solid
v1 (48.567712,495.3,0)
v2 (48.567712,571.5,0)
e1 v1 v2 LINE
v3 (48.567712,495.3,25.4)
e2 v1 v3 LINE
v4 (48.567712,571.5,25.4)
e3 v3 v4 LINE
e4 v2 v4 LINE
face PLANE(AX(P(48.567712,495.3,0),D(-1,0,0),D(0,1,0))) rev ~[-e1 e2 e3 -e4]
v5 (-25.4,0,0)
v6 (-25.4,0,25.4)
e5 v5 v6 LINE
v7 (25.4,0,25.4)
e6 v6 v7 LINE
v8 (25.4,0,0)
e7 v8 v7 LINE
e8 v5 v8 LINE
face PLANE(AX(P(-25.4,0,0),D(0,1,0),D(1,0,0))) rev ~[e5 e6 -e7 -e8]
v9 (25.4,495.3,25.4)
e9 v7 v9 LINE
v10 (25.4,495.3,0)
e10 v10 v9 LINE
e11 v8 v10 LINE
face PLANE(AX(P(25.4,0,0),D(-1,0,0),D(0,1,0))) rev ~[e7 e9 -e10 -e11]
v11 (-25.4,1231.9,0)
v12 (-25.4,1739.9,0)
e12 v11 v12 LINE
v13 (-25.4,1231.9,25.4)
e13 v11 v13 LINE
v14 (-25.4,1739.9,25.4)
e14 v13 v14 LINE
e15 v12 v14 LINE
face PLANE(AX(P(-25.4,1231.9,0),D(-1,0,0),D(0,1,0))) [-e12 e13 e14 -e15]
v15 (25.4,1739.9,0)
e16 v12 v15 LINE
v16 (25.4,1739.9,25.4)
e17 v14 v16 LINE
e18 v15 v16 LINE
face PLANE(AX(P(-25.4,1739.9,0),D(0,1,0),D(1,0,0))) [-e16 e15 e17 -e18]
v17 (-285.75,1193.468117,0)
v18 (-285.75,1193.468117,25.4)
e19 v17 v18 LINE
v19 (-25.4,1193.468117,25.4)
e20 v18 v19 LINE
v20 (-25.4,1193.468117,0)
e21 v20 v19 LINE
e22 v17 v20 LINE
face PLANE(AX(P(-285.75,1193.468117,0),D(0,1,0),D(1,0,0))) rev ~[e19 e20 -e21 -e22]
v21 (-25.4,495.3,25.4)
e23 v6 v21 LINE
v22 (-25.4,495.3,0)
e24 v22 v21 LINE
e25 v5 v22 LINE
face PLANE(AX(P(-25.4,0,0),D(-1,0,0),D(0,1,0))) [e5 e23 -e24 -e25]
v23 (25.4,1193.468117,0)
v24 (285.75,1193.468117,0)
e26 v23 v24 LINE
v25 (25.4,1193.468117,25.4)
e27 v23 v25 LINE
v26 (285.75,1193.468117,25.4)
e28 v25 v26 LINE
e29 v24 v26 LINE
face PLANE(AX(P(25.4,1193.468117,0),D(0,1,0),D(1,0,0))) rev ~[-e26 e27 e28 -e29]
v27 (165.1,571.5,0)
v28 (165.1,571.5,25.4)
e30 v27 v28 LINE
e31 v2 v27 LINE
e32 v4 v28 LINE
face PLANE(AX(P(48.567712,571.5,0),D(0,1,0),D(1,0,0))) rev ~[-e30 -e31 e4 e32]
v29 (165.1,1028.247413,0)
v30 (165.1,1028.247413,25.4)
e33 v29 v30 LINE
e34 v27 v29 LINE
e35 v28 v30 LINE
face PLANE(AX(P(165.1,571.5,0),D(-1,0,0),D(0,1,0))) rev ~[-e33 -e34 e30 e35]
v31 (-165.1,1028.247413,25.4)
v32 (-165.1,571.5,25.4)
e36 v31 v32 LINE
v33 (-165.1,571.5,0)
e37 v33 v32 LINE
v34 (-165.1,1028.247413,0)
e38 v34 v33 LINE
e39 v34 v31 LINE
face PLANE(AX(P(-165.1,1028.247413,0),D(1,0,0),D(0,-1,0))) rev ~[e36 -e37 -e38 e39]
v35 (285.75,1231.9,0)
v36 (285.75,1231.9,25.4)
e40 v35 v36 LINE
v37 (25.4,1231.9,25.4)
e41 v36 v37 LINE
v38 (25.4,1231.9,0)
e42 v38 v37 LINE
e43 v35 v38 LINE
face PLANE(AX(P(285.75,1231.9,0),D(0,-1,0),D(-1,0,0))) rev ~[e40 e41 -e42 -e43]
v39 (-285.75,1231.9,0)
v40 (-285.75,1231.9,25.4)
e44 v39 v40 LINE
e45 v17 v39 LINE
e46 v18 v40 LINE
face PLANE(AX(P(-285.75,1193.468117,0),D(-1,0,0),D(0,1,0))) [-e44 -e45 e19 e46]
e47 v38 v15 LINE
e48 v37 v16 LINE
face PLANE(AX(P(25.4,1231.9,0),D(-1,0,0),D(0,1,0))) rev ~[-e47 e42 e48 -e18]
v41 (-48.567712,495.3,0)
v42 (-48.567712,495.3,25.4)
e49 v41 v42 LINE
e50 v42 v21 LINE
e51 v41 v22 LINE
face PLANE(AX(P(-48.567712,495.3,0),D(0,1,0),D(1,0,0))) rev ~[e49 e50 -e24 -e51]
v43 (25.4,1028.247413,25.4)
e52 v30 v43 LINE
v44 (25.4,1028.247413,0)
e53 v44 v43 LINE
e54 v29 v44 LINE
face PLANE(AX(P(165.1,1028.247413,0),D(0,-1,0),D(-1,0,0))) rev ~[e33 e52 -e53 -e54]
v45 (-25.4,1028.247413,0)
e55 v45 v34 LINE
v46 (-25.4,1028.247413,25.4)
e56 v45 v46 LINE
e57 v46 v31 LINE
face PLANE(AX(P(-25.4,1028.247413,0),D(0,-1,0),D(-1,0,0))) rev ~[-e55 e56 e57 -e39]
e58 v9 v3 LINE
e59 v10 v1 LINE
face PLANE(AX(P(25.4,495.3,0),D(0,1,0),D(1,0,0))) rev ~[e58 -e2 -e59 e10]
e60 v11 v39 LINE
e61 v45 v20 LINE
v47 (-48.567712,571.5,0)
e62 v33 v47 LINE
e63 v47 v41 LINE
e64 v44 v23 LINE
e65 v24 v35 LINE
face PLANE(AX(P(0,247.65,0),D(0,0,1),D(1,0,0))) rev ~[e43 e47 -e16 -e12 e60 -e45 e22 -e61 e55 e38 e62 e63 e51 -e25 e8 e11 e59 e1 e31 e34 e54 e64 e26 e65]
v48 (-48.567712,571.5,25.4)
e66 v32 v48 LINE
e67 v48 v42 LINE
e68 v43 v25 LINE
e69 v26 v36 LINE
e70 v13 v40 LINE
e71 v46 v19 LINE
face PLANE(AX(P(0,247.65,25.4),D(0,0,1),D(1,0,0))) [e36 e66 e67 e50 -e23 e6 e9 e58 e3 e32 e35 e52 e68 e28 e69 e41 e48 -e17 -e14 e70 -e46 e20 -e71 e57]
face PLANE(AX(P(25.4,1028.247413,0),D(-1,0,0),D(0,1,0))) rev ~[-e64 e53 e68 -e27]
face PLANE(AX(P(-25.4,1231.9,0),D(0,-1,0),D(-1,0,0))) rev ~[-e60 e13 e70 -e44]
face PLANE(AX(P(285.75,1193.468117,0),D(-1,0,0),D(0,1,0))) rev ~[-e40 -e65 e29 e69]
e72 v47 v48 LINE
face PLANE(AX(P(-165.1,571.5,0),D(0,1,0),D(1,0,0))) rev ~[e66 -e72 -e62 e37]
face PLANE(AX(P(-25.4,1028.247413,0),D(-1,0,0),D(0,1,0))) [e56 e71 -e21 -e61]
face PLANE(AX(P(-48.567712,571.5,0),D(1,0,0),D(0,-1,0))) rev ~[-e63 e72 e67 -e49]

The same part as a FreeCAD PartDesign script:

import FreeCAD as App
import Part
import Sketcher
from FreeCAD import Vector
Q = App.Units.Quantity

doc = App.newDocument("Part")
body = doc.addObject("PartDesign::Body", "Body")

# Sketch on XY plane
sketch1 = body.newObject("Sketcher::SketchObject", "Sketch")
sketch1.AttachmentSupport = (doc.getObject("XY_Plane"), [""])
sketch1.MapMode = "FlatFace"
sketch1.addGeometry([
    Part.LineSegment(Vector(49, 495, 0), Vector(49, 572, 0)),  # 0
    Part.LineSegment(Vector(49, 572, 0), Vector(165, 572, 0)),  # 1
    Part.LineSegment(Vector(165, 572, 0), Vector(165, 1028, 0)),  # 2
    Part.LineSegment(Vector(165, 1028, 0), Vector(25, 1028, 0)),  # 3
    Part.LineSegment(Vector(25, 1028, 0), Vector(25, 1193, 0)),  # 4
    Part.LineSegment(Vector(25, 1193, 0), Vector(286, 1193, 0)),  # 5
    Part.LineSegment(Vector(286, 1193, 0), Vector(286, 1232, 0)),  # 6
    Part.LineSegment(Vector(286, 1232, 0), Vector(25, 1232, 0)),  # 7
    Part.LineSegment(Vector(25, 1232, 0), Vector(25, 1740, 0)),  # 8
    Part.LineSegment(Vector(25, 1740, 0), Vector(-25, 1740, 0)),  # 9
    Part.LineSegment(Vector(-25, 1740, 0), Vector(-25, 1232, 0)),  # 10
    Part.LineSegment(Vector(-25, 1232, 0), Vector(-286, 1232, 0)),  # 11
    Part.LineSegment(Vector(-286, 1232, 0), Vector(-286, 1193, 0)),  # 12
    Part.LineSegment(Vector(-286, 1193, 0), Vector(-25, 1193, 0)),  # 13
    Part.LineSegment(Vector(-25, 1193, 0), Vector(-25, 1028, 0)),  # 14
    Part.LineSegment(Vector(-25, 1028, 0), Vector(-165, 1028, 0)),  # 15
    Part.LineSegment(Vector(-165, 1028, 0), Vector(-165, 572, 0)),  # 16
    Part.LineSegment(Vector(-165, 572, 0), Vector(-49, 572, 0)),  # 17
    Part.LineSegment(Vector(-49, 572, 0), Vector(-49, 495, 0)),  # 18
    Part.LineSegment(Vector(-49, 495, 0), Vector(-25, 495, 0)),  # 19
    Part.LineSegment(Vector(-25, 495, 0), Vector(-25, 0, 0)),  # 20
    Part.LineSegment(Vector(-25, 0, 0), Vector(25, 0, 0)),  # 21
    Part.LineSegment(Vector(25, 0, 0), Vector(25, 495, 0)),  # 22
    Part.LineSegment(Vector(25, 495, 0), Vector(49, 495, 0)),  # 23
], False)
sketch1.addConstraint([
    Sketcher.Constraint("Coincident", 0, 2, 1, 1),
    Sketcher.Constraint("Coincident", 1, 2, 2, 1),
    Sketcher.Constraint("Coincident", 2, 2, 3, 1),
    Sketcher.Constraint("Coincident", 3, 2, 4, 1),
    Sketcher.Constraint("Coincident", 4, 2, 5, 1),
    Sketcher.Constraint("Coincident", 5, 2, 6, 1),
    Sketcher.Constraint("Coincident", 6, 2, 7, 1),
    Sketcher.Constraint("Coincident", 7, 2, 8, 1),
    Sketcher.Constraint("Coincident", 8, 2, 9, 1),
    Sketcher.Constraint("Coincident", 9, 2, 10, 1),
    Sketcher.Constraint("Coincident", 10, 2, 11, 1),
    Sketcher.Constraint("Coincident", 11, 2, 12, 1),
    Sketcher.Constraint("Coincident", 12, 2, 13, 1),
    Sketcher.Constraint("Coincident", 13, 2, 14, 1),
    Sketcher.Constraint("Coincident", 14, 2, 15, 1),
    Sketcher.Constraint("Coincident", 15, 2, 16, 1),
    Sketcher.Constraint("Coincident", 16, 2, 17, 1),
    Sketcher.Constraint("Coincident", 17, 2, 18, 1),
    Sketcher.Constraint("Coincident", 18, 2, 19, 1),
    Sketcher.Constraint("Coincident", 19, 2, 20, 1),
    Sketcher.Constraint("Coincident", 20, 2, 21, 1),
    Sketcher.Constraint("Coincident", 21, 2, 22, 1),
    Sketcher.Constraint("Coincident", 22, 2, 23, 1),
    Sketcher.Constraint("Coincident", 23, 2, 0, 1),
    Sketcher.Constraint("Vertical", 0),
    Sketcher.Constraint("Horizontal", 1),
    Sketcher.Constraint("Vertical", 2),
    Sketcher.Constraint("Horizontal", 3),
    Sketcher.Constraint("Vertical", 4),
    Sketcher.Constraint("Horizontal", 5),
    Sketcher.Constraint("Vertical", 6),
    Sketcher.Constraint("Horizontal", 7),
    Sketcher.Constraint("Vertical", 8),
    Sketcher.Constraint("Horizontal", 9),
    Sketcher.Constraint("Vertical", 10),
    Sketcher.Constraint("Horizontal", 11),
    Sketcher.Constraint("Vertical", 12),
    Sketcher.Constraint("Horizontal", 13),
    Sketcher.Constraint("Vertical", 14),
    Sketcher.Constraint("Horizontal", 15),
    Sketcher.Constraint("Vertical", 16),
    Sketcher.Constraint("Horizontal", 17),
    Sketcher.Constraint("Vertical", 18),
    Sketcher.Constraint("Horizontal", 19),
    Sketcher.Constraint("Vertical", 20),
    Sketcher.Constraint("Horizontal", 21),
    Sketcher.Constraint("Vertical", 22),
    Sketcher.Constraint("Horizontal", 23),
    Sketcher.Constraint("Symmetric", 20, 2, 21, 2, -1, 1),
    Sketcher.Constraint("Symmetric", 7, 2, 10, 2, -2),
    Sketcher.Constraint("Symmetric", 5, 2, 12, 2, -2),
    Sketcher.Constraint("Symmetric", 3, 2, 14, 2, -2),
    Sketcher.Constraint("Symmetric", 1, 2, 16, 2, -2),
    Sketcher.Constraint("Symmetric", 18, 2, 23, 2, -2),
    Sketcher.Constraint("Vertical", 4, 2, 7, 2),
    Sketcher.Constraint("Vertical", 14, 2, 19, 2),
    Sketcher.Constraint("DistanceX", 9, 2, 9, 1, Q("2 in")),
    Sketcher.Constraint("DistanceY", 0, 1, 0, 2, Q("3 in")),
    Sketcher.Constraint("DistanceY", 8, 1, 8, 2, Q("20 in")),
    Sketcher.Constraint("DistanceX", 3, 2, 3, 1, Q("5.5 in")),
    Sketcher.Constraint("DistanceY", 20, 2, 20, 1, Q("19.5 in")),
    Sketcher.Constraint("DistanceY", 1, 2, 6, 2, Q("26 in")),
    Sketcher.Constraint("DistanceX", 5, 1, 5, 2, Q("10.25 in")),
    Sketcher.Constraint("DistanceX", 1, 1, 1, 2, Q("116.532288 mm")),
    Sketcher.Constraint("DistanceY", 2, 1, 2, 2, Q("456.747413 mm")),
    Sketcher.Constraint("DistanceY", 4, 1, 4, 2, Q("165.220704 mm")),
])
pad1 = body.newObject("PartDesign::Pad", "Pad")
pad1.Profile = sketch1
pad1.Length = Q("1 in")

doc.recompute()
